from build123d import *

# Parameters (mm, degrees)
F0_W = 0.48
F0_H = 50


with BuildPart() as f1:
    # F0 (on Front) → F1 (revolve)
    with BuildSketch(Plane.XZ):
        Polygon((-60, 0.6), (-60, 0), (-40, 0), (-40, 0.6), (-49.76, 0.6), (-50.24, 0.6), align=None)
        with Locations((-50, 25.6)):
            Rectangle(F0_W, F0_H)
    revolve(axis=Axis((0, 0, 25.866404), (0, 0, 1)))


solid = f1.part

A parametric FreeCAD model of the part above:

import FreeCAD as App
import Part
import Sketcher
Q = App.Units.Quantity


def add_polygon(sketch, points):
    """Adds a closed chain of lines whose ends are joined by coincident constraints."""
    first, n = sketch.GeometryCount, len(points)
    for a, b in zip(points, points[1:] + points[:1]):
        sketch.addGeometry(Part.LineSegment(App.Vector(*a, 0), App.Vector(*b, 0)), False)
    for i in range(n):
        sketch.addConstraint(Sketcher.Constraint("Coincident", first + i, 2, first + (i + 1) % n, 1))

doc = App.newDocument("Part")
body = doc.addObject("PartDesign::Body", "Body")

sketch1 = body.newObject("Sketcher::SketchObject", "Sketch")
sketch1.AttachmentSupport = (doc.getObject("XZ_Plane"), [""])
sketch1.MapMode = "FlatFace"
add_polygon(sketch1, [(-60, 0.6), (-60, 0), (-40, 0), (-40, 0.6), (-49.76, 0.6), (-49.76, 50.6), (-50.24, 50.6), (-50.24, 0.6)])
sketch1.addConstraint([
    Sketcher.Constraint("Vertical", 0),
    Sketcher.Constraint("Horizontal", 1),
    Sketcher.Constraint("Vertical", 2),
    Sketcher.Constraint("Horizontal", 3),
    Sketcher.Constraint("Vertical", 4),
    Sketcher.Constraint("Horizontal", 5),
    Sketcher.Constraint("Vertical", 6),
    Sketcher.Constraint("Horizontal", 7),
    Sketcher.Constraint("PointOnObject", 0, 2, -1),
    Sketcher.Constraint("Horizontal", 3, 2, 6, 2),
    Sketcher.Constraint("Equal", 3, 7),
    Sketcher.Constraint("DistanceX", 1, 1, 1, 2, Q("20 mm")),
    Sketcher.Constraint("DistanceY", 4, 1, 4, 2, Q("50 mm")),
    Sketcher.Constraint("DistanceY", 0, 2, 0, 1, Q("0.6 mm")),
    Sketcher.Constraint("DistanceX", 0, 2, -1, 1, Q("60 mm")),
    Sketcher.Constraint("DistanceX", 3, 2, 3, 1, Q("9.76 mm")),
])
revolution = body.newObject("PartDesign::Revolution", "Revolution")
revolution.Profile = sketch1
revolution.ReferenceAxis = (sketch1, ["V_Axis"])
revolution.Angle = 360

doc.recompute()
